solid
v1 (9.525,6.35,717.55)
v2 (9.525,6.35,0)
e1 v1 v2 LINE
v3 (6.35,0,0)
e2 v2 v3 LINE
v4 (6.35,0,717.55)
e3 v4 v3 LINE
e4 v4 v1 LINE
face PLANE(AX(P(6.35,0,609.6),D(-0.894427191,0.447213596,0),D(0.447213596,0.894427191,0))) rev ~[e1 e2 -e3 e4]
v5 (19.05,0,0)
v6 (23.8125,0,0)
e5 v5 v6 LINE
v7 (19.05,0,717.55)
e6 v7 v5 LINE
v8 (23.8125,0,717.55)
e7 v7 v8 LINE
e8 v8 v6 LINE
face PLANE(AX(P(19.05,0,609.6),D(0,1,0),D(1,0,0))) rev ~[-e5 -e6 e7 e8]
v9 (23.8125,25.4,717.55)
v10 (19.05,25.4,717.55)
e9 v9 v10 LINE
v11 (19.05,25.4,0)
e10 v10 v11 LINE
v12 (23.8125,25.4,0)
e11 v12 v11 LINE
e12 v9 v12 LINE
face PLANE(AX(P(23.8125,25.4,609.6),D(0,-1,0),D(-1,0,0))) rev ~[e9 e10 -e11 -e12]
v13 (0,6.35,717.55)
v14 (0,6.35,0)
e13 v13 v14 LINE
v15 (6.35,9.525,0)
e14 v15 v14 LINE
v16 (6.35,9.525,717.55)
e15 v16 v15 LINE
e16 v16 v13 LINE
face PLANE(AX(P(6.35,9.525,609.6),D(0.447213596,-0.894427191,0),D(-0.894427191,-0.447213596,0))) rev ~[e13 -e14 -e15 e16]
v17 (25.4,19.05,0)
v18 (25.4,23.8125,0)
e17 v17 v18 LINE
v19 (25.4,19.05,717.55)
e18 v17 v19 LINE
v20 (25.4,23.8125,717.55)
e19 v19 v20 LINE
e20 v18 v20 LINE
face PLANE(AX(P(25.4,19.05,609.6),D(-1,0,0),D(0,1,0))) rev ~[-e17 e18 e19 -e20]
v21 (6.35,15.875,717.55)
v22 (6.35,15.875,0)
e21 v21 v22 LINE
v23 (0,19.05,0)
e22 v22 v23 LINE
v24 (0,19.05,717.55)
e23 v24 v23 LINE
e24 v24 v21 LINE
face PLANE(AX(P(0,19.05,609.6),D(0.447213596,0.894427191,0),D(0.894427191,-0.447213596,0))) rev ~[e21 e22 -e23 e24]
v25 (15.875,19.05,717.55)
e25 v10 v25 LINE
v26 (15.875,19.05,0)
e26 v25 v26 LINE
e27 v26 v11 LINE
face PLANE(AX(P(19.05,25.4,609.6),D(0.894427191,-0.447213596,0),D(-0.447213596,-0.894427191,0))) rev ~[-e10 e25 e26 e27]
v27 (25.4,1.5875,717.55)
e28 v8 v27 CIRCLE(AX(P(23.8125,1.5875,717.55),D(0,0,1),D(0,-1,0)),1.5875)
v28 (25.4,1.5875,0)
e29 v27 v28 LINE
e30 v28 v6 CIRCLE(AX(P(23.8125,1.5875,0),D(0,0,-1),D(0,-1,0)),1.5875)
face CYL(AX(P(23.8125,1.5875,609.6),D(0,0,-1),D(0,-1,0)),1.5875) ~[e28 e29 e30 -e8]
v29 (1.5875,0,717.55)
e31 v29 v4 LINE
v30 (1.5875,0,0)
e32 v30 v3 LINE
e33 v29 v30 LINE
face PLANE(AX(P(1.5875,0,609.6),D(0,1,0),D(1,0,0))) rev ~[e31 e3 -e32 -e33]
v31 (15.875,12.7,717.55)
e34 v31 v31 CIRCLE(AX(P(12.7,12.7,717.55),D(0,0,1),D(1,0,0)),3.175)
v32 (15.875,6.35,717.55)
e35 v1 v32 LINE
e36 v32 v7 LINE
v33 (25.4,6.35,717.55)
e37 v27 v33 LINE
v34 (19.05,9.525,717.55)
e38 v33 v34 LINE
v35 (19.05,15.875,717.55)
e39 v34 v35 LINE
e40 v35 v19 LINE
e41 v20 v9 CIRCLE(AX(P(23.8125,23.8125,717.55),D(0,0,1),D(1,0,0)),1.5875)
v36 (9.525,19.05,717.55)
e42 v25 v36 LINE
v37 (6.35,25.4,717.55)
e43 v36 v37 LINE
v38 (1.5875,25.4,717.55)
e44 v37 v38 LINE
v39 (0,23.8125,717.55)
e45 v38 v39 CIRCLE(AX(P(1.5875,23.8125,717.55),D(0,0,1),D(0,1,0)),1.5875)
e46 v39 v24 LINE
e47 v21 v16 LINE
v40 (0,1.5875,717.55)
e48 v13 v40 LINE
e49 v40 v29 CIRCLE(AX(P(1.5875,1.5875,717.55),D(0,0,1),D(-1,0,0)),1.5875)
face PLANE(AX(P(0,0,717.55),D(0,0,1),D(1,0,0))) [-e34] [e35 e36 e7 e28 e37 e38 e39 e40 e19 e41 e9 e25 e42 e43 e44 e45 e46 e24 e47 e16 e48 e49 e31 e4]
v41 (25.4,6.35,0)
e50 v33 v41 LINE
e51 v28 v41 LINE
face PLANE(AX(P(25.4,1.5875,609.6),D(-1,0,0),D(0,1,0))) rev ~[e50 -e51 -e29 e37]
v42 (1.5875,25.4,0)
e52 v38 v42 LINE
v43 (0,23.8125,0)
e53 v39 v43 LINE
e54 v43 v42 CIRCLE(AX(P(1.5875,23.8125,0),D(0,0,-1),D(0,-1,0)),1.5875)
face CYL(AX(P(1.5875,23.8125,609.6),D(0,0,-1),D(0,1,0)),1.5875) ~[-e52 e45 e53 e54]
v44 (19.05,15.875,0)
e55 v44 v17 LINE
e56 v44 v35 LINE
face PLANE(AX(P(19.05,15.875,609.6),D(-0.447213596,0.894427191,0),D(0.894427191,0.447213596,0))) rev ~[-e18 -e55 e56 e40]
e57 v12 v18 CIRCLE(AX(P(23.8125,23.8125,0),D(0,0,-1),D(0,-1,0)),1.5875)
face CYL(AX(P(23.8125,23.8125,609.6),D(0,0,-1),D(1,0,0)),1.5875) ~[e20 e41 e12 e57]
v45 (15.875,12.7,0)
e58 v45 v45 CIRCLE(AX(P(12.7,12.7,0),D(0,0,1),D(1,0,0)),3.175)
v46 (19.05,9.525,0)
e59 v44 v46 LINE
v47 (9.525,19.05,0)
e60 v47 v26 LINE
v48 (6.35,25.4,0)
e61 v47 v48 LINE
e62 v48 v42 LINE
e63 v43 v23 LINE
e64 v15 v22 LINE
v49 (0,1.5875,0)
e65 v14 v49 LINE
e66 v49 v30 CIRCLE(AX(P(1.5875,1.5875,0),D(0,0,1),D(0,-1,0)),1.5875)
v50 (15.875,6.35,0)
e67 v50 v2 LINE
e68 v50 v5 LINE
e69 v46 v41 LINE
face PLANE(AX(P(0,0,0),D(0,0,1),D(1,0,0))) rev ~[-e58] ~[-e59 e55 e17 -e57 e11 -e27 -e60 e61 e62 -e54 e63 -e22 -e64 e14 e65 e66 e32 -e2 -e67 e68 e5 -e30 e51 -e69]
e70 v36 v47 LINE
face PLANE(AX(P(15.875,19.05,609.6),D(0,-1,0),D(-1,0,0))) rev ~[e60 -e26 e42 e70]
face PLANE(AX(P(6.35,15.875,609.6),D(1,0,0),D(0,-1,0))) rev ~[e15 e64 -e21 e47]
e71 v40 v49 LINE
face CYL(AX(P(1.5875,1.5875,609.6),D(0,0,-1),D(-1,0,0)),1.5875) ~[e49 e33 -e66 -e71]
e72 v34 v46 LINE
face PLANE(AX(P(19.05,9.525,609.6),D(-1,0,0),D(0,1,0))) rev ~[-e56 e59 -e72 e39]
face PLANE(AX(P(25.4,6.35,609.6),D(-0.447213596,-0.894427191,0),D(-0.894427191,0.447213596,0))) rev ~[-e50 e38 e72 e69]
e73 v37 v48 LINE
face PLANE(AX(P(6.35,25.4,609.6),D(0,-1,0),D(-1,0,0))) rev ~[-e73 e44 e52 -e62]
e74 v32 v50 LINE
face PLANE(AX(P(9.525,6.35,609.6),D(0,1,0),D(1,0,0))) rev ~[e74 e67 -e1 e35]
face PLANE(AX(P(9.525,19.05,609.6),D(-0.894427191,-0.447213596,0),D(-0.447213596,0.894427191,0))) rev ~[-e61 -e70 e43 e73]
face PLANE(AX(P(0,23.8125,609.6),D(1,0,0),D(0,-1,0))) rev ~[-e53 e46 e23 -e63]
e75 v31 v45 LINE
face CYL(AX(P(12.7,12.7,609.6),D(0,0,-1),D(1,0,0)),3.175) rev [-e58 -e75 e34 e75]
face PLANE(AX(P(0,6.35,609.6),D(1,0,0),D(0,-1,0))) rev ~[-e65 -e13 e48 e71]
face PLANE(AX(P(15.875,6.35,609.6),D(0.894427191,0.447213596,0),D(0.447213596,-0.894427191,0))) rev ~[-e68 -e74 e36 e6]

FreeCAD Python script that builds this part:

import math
import FreeCAD as App
import Part
import Sketcher
from FreeCAD import Vector
Q = App.Units.Quantity


def edges_at(feature, points):
    """Names of the edges that pass closest to the given points."""
    edges = feature.Shape.Edges
    near = lambda p: min(range(len(edges)), key=lambda i: edges[i].distToShape(Part.Vertex(*p))[0])
    return sorted({f"Edge{near(p) + 1}" for p in points})


def add_polygon(sketch, points):
    """Adds a closed chain of lines whose ends are joined by coincident constraints."""
    first, n = sketch.GeometryCount, len(points)
    for a, b in zip(points, points[1:] + points[:1]):
        sketch.addGeometry(Part.LineSegment(App.Vector(*a, 0), App.Vector(*b, 0)), False)
    for i in range(n):
        sketch.addConstraint(Sketcher.Constraint("Coincident", first + i, 2, first + (i + 1) % n, 1))

doc = App.newDocument("Part")
body = doc.addObject("PartDesign::Body", "Body")

# Sketch on XY plane
sketch1 = body.newObject("Sketcher::SketchObject", "Sketch")
sketch1.AttachmentSupport = (doc.getObject("XY_Plane"), [""])
sketch1.MapMode = "FlatFace"
add_polygon(sketch1, [(0, 25.4), (0, 0), (25.4, 0), (25.4, 25.4)])  # lines 0-3
sketch1.addGeometry(Part.Circle(Vector(12.7, 12.7, 0), Vector(0, 0, 1), 3.175), False)  # 4
sketch1.addConstraint([
    Sketcher.Constraint("Vertical", 0),
    Sketcher.Constraint("Horizontal", 1),
    Sketcher.Constraint("Vertical", 2),
    Sketcher.Constraint("Horizontal", 3),
    Sketcher.Constraint("Coincident", 0, 2, -1, 1),
    Sketcher.Constraint("Equal", 3, 0),
    Sketcher.Constraint("Diameter", 4, Q("0.25 in")),
    Sketcher.Constraint("DistanceX", 1, 1, 1, 2, Q("1 in")),
    Sketcher.Constraint("DistanceX", -1, 1, 4, 3, Q("0.5 in")),
    Sketcher.Constraint("DistanceY", -1, 1, 4, 3, Q("0.5 in")),
])
pad1 = body.newObject("PartDesign::Pad", "Pad")
pad1.Profile = sketch1
pad1.Length = Q("24 in")
doc.recompute()

fillet = body.newObject("PartDesign::Fillet", "Fillet")
fillet.Base = (pad1, edges_at(pad1, [
    (25.4, 25.4, 304.8),
    (0, 25.4, 304.8),
    (25.4, 0, 304.8),
    (0, 0, 304.8),
]))
fillet.Radius = Q("0.0625 in")

# Sketch on XY plane
sketch2 = body.newObject("Sketcher::SketchObject", "Sketch001")
sketch2.AttachmentSupport = (doc.getObject("XY_Plane"), [""])
sketch2.MapMode = "FlatFace"
sketch2.AttachmentOffset = App.Placement(Vector(0, 0, 24 * 25.4), App.Rotation())
add_polygon(sketch2, [(15.875, 19.05), (19.05, 25.4), (6.35, 25.4), (9.525, 19.05)])  # lines 0-3
sketch2.addConstraint([
    Sketcher.Constraint("Horizontal", 1),
    Sketcher.Constraint("Horizontal", 3),
    Sketcher.Constraint("Equal", 0, 2),
    Sketcher.Constraint("DistanceX", 3, 1, 3, 2, Q("0.25 in")),
    Sketcher.Constraint("DistanceX", -1, 1, 1, 2, Q("0.25 in")),
    Sketcher.Constraint("DistanceY", 2, 2, 1, 2, Q("0.25 in")),
    Sketcher.Constraint("DistanceX", 1, 2, 1, 1, Q("0.5 in")),
    Sketcher.Constraint("DistanceY", -1, 1, 0, 2, Q("1 in")),
])
pocket1 = body.newObject("PartDesign::Pocket", "Pocket")
pocket1.Profile = sketch2
pocket1.Length = Q("24 in")
doc.recompute()

datumline = body.newObject("PartDesign::Line", "DatumLine")
datumline.Placement = App.Placement(Vector(12.7, 12.7, 0), App.Rotation(Vector(0, 0, 1), Vector(0, 0, 1)))
polarpattern = body.newObject("PartDesign::PolarPattern", "PolarPattern")
polarpattern.Originals = [pocket1]
polarpattern.Axis = (datumline, [""])
polarpattern.Angle = 360
polarpattern.Occurrences = 4
body.Tip = polarpattern

# Sketch on XY plane
sketch3 = body.newObject("Sketcher::SketchObject", "Sketch002")
sketch3.AttachmentSupport = (doc.getObject("XY_Plane"), [""])
sketch3.MapMode = "FlatFace"
sketch3.AttachmentOffset = App.Placement(Vector(0, 0, 24 * 25.4), App.Rotation())
sketch3.addGeometry([
    Part.LineSegment(Vector(19.05, 9.525, 0), Vector(19.05, 15.875, 0)),  # 0
    Part.LineSegment(Vector(19.05, 15.875, 0), Vector(25.4, 19.05, 0)),  # 1
    Part.LineSegment(Vector(25.4, 19.05, 0), Vector(25.4, 23.8125, 0)),  # 2
    Part.ArcOfCircle(Part.Circle(Vector(23.8125, 23.8125, 0), Vector(0, 0, 1), 1.5875), math.radians(0), math.radians(90)),  # 3
    Part.LineSegment(Vector(23.8125, 25.4, 0), Vector(19.05, 25.4, 0)),  # 4
    Part.LineSegment(Vector(19.05, 25.4, 0), Vector(15.875, 19.05, 0)),  # 5
    Part.LineSegment(Vector(15.875, 19.05, 0), Vector(9.525, 19.05, 0)),  # 6
    Part.LineSegment(Vector(9.525, 19.05, 0), Vector(6.35, 25.4, 0)),  # 7
    Part.LineSegment(Vector(6.35, 25.4, 0), Vector(1.5875, 25.4, 0)),  # 8
    Part.ArcOfCircle(Part.Circle(Vector(1.5875, 23.8125, 0), Vector(0, 0, 1), 1.5875), math.radians(90), math.radians(180)),  # 9
    Part.LineSegment(Vector(0, 23.8125, 0), Vector(0, 19.05, 0)),  # 10
    Part.LineSegment(Vector(0, 19.05, 0), Vector(6.35, 15.875, 0)),  # 11
    Part.LineSegment(Vector(6.35, 15.875, 0), Vector(6.35, 9.525, 0)),  # 12
    Part.LineSegment(Vector(6.35, 9.525, 0), Vector(0, 6.35, 0)),  # 13
    Part.LineSegment(Vector(0, 6.35, 0), Vector(0, 1.5875, 0)),  # 14
    Part.ArcOfCircle(Part.Circle(Vector(1.5875, 1.5875, 0), Vector(0, 0, 1), 1.5875), math.radians(180), math.radians(270)),  # 15
    Part.LineSegment(Vector(1.5875, 0, 0), Vector(6.35, 0, 0)),  # 16
    Part.LineSegment(Vector(6.35, 0, 0), Vector(9.525, 6.35, 0)),  # 17
    Part.LineSegment(Vector(9.525, 6.35, 0), Vector(15.875, 6.35, 0)),  # 18
    Part.LineSegment(Vector(15.875, 6.35, 0), Vector(19.05, 0, 0)),  # 19
    Part.LineSegment(Vector(19.05, 0, 0), Vector(23.8125, 0, 0)),  # 20
    Part.ArcOfCircle(Part.Circle(Vector(23.8125, 1.5875, 0), Vector(0, 0, 1), 1.5875), math.radians(-90), math.radians(0)),  # 21
    Part.LineSegment(Vector(25.4, 1.5875, 0), Vector(25.4, 6.35, 0)),  # 22
    Part.LineSegment(Vector(25.4, 6.35, 0), Vector(19.05, 9.525, 0)),  # 23
    Part.Circle(Vector(12.7, 12.7, 0), Vector(0, 0, 1), 3.175),  # 24
], False)
sketch3.addConstraint([
    Sketcher.Constraint("Coincident", 0, 2, 1, 1),
    Sketcher.Constraint("Coincident", 1, 2, 2, 1),
    Sketcher.Constraint("Tangent", 2, 2, 3, 1),
    Sketcher.Constraint("Tangent", 3, 2, 4, 1),
    Sketcher.Constraint("Coincident", 4, 2, 5, 1),
    Sketcher.Constraint("Coincident", 5, 2, 6, 1),
    Sketcher.Constraint("Coincident", 6, 2, 7, 1),
    Sketcher.Constraint("Coincident", 7, 2, 8, 1),
    Sketcher.Constraint("Tangent", 8, 2, 9, 1),
    Sketcher.Constraint("Tangent", 9, 2, 10, 1),
    Sketcher.Constraint("Coincident", 10, 2, 11, 1),
    Sketcher.Constraint("Coincident", 11, 2, 12, 1),
    Sketcher.Constraint("Coincident", 12, 2, 13, 1),
    Sketcher.Constraint("Coincident", 13, 2, 14, 1),
    Sketcher.Constraint("Tangent", 14, 2, 15, 1),
    Sketcher.Constraint("Tangent", 15, 2, 16, 1),
    Sketcher.Constraint("Coincident", 16, 2, 17, 1),
    Sketcher.Constraint("Coincident", 17, 2, 18, 1),
    Sketcher.Constraint("Coincident", 18, 2, 19, 1),
    Sketcher.Constraint("Coincident", 19, 2, 20, 1),
    Sketcher.Constraint("Tangent", 20, 2, 21, 1),
    Sketcher.Constraint("Tangent", 21, 2, 22, 1),
    Sketcher.Constraint("Coincident", 22, 2, 23, 1),
    Sketcher.Constraint("Coincident", 23, 2, 0, 1),
    Sketcher.Constraint("Vertical", 0),
    Sketcher.Constraint("Vertical", 2),
    Sketcher.Constraint("Horizontal", 4),
    Sketcher.Constraint("Horizontal", 6),
    Sketcher.Constraint("Horizontal", 8),
    Sketcher.Constraint("Vertical", 10),
    Sketcher.Constraint("Vertical", 12),
    Sketcher.Constraint("Vertical", 14),
    Sketcher.Constraint("Horizontal", 16),
    Sketcher.Constraint("Horizontal", 18),
    Sketcher.Constraint("Horizontal", 20),
    Sketcher.Constraint("Vertical", 22),
    Sketcher.Constraint("Equal", 3, 9),
    Sketcher.Constraint("Equal", 9, 15),
    Sketcher.Constraint("Equal", 15, 21),
    Sketcher.Constraint("PointOnObject", 9, 2, -2),
    Sketcher.Constraint("PointOnObject", 13, 2, -2),
    Sketcher.Constraint("PointOnObject", 15, 2, -1),
    Sketcher.Constraint("PointOnObject", 19, 2, -1),
    Sketcher.Constraint("Perpendicular", 1, 7),
    Sketcher.Constraint("Perpendicular", 5, 11),
    Sketcher.Constraint("Perpendicular", 7, 13),
    Sketcher.Constraint("Perpendicular", 11, 17),
    Sketcher.Constraint("Perpendicular", 13, 19),
    Sketcher.Constraint("Perpendicular", 17, 23),
    Sketcher.Constraint("Horizontal", 3, 3, 9, 3),
    Sketcher.Constraint("Horizontal", 1, 2, 5, 2),
    Sketcher.Constraint("Horizontal", 6, 2, 10, 2),
    Sketcher.Constraint("Horizontal", 0, 2, 11, 2),
    Sketcher.Constraint("Horizontal", 13, 2, 17, 2),
    Sketcher.Constraint("Horizontal", 18, 2, 22, 2),
    Sketcher.Constraint("Horizontal", 12, 2, 23, 2),
    Sketcher.Constraint("Vertical", 3, 3, 21, 3),
    Sketcher.Constraint("Vertical", 0, 2, 4, 2),
    Sketcher.Constraint("Vertical", 7, 2, 11, 2),
    Sketcher.Constraint("Vertical", 12, 2, 16, 2),
    Sketcher.Constraint("Vertical", 6, 2, 17, 2),
    Sketcher.Constraint("Vertical", 5, 2, 18, 2),
    Sketcher.Constraint("Equal", 18, 0),
    Sketcher.Constraint("Equal", 20, 2),
    Sketcher.Constraint("Diameter", 24, Q("0.25 in")),
    Sketcher.Constraint("DistanceX", -1, 1, 1, 2, Q("1 in")),
    Sketcher.Constraint("Radius", 3, Q("0.0625 in")),
    Sketcher.Constraint("DistanceX", 6, 2, 6, 1, Q("0.25 in")),
    Sketcher.Constraint("DistanceX", -1, 1, 24, 3, Q("0.5 in")),
    Sketcher.Constraint("DistanceY", -1, 1, 24, 3, Q("0.5 in")),
    Sketcher.Constraint("DistanceX", 7, 2, 4, 2, Q("0.5 in")),
])
pad2 = body.newObject("PartDesign::Pad", "Pad001")
pad2.Profile = sketch3
pad2.Length = Q("4.25 in")

doc.recompute()
